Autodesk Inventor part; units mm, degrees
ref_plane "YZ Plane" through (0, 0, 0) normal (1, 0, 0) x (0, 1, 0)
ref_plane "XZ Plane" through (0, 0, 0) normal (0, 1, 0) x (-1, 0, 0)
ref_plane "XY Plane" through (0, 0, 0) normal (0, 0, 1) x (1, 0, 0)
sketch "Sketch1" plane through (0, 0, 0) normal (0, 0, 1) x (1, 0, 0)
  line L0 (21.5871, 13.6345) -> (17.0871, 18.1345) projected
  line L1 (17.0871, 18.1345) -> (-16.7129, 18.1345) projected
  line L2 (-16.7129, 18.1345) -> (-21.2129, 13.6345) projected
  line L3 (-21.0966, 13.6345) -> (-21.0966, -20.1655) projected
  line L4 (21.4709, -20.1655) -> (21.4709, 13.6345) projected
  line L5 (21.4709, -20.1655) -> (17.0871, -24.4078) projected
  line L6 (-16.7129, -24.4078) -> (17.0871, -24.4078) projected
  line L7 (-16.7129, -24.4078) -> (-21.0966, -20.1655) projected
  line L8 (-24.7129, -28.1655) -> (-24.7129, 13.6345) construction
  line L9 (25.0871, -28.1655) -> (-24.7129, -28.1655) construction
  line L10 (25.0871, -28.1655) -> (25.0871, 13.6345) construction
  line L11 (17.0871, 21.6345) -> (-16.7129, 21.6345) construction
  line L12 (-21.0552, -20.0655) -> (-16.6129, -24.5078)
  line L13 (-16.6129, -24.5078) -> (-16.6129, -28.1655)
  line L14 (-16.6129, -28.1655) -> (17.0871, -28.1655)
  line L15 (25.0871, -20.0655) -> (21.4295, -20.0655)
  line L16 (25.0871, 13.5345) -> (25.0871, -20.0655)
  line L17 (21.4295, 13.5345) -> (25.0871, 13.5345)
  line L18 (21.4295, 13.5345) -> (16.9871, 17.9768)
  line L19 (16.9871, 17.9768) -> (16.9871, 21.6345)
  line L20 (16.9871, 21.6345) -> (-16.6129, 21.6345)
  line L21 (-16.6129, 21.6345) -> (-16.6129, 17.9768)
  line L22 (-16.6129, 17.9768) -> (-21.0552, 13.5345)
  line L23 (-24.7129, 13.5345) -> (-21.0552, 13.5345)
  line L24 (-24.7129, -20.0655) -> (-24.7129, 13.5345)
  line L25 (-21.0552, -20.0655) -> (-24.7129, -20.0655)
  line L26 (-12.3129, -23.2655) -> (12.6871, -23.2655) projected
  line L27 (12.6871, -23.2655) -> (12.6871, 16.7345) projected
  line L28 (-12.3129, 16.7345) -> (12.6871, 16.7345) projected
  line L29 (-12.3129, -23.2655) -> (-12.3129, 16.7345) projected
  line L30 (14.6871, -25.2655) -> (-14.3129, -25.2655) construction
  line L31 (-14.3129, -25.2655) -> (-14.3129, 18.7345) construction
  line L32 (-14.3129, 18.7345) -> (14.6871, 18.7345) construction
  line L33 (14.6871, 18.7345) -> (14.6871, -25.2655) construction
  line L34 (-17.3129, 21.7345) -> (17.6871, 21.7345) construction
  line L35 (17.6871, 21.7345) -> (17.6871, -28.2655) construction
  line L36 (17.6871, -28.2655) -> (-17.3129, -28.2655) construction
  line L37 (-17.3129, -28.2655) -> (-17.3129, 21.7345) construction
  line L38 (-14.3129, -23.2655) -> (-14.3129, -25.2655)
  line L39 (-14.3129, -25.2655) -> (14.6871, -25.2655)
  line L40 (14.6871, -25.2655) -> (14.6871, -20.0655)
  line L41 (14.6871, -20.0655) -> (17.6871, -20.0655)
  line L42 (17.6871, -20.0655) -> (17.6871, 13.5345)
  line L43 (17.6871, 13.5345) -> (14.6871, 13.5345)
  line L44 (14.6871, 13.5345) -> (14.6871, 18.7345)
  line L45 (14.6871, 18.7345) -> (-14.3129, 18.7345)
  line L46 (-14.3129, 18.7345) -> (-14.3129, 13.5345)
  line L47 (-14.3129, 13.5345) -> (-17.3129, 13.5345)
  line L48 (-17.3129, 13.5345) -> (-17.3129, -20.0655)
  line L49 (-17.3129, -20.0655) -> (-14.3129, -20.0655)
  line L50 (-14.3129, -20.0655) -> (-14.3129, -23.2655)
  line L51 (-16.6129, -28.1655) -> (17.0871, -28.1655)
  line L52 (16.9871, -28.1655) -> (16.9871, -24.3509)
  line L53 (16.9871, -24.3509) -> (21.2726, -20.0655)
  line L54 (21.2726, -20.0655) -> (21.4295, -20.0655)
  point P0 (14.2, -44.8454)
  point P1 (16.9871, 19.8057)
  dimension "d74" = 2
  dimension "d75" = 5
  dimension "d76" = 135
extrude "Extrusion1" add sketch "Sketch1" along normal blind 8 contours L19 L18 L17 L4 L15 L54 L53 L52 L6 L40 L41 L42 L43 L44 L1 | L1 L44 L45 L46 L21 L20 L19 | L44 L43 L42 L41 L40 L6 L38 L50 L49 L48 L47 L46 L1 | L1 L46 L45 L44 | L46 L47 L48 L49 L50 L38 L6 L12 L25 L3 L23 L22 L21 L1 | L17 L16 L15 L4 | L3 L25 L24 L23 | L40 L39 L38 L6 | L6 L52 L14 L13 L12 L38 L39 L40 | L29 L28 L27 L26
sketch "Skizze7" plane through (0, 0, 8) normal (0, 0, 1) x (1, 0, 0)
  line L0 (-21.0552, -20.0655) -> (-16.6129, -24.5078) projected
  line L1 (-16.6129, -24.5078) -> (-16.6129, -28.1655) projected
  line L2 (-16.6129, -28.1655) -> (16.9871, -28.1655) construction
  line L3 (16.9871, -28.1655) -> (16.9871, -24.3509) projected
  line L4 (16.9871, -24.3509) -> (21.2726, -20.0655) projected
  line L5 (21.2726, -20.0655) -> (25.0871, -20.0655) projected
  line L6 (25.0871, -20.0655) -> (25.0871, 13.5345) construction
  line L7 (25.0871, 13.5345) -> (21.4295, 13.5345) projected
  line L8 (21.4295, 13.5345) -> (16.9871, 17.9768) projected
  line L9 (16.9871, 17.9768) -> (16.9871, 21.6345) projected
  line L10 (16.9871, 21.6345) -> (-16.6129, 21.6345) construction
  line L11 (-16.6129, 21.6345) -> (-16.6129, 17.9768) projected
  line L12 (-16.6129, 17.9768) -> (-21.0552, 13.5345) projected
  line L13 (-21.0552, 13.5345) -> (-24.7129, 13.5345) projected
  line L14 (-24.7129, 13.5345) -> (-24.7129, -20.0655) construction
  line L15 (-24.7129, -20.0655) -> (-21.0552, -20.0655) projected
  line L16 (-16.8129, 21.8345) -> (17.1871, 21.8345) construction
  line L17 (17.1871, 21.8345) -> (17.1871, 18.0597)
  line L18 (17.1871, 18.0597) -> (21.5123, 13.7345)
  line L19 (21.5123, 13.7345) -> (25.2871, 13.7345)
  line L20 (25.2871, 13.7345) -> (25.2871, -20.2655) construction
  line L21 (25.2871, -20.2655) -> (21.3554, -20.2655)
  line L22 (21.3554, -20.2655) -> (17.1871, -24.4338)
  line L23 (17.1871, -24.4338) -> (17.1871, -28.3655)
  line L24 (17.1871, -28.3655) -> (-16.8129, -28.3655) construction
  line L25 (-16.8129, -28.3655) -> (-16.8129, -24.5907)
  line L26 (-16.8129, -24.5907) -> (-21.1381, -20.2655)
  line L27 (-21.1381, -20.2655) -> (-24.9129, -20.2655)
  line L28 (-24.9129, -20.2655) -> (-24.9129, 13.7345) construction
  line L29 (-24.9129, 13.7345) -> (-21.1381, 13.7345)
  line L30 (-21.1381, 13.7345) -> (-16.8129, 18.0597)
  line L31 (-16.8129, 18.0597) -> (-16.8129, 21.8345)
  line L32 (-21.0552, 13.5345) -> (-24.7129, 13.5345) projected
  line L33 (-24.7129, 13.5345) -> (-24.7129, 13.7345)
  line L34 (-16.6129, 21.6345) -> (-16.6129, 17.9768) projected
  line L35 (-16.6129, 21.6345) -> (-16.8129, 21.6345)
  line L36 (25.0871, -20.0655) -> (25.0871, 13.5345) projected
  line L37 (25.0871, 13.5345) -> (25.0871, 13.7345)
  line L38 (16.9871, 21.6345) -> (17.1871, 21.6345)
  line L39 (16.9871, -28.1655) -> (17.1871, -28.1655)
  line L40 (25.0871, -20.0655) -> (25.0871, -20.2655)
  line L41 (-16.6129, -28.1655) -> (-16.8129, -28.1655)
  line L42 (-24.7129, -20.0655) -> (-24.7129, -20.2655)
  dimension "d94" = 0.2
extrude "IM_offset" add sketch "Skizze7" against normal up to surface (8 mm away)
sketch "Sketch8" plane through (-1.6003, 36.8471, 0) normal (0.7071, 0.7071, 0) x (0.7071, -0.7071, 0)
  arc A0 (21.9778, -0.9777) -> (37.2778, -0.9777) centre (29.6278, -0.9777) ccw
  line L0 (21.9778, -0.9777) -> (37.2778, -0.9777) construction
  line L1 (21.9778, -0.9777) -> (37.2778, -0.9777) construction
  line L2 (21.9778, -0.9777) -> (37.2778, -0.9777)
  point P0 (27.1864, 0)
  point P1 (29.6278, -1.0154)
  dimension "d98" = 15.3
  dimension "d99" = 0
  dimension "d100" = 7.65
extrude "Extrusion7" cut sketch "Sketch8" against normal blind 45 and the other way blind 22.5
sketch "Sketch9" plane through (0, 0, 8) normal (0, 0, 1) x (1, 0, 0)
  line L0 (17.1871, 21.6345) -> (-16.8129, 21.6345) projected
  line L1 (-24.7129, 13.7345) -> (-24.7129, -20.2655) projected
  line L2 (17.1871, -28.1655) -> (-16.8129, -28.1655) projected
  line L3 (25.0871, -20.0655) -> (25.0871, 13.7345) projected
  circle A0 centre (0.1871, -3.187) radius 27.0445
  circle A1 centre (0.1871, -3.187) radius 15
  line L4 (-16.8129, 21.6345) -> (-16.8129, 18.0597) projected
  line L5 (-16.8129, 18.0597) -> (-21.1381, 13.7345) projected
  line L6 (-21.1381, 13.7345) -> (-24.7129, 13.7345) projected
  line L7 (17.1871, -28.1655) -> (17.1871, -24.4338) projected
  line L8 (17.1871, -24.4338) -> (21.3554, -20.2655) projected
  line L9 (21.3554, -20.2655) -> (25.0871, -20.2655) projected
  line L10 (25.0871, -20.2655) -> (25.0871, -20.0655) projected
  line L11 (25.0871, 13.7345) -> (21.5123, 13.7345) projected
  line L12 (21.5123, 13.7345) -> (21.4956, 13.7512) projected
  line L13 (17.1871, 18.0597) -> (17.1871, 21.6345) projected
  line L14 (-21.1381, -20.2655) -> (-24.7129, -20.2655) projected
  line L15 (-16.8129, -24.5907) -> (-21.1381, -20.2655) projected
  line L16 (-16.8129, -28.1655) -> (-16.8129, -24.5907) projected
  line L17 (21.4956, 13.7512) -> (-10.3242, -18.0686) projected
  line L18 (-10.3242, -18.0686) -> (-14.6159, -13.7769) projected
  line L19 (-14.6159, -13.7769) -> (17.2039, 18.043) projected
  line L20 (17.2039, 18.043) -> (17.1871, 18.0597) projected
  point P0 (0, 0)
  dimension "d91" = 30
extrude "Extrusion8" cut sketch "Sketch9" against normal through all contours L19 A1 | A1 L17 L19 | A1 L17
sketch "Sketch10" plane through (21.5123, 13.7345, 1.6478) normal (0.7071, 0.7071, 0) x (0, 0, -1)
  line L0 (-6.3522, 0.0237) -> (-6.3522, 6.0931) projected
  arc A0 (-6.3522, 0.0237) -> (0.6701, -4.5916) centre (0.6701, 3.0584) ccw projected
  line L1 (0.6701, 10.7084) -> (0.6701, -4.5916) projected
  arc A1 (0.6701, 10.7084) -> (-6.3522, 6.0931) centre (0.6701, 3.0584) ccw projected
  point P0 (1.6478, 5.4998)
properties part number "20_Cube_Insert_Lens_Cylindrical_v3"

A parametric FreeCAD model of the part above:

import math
import FreeCAD as App
import Part
import Sketcher

V = App.Vector
Q = App.Units.Quantity


def add_polygon(sketch, points):
    """Adds a closed chain of lines whose ends are joined by coincident constraints."""
    first, n = sketch.GeometryCount, len(points)
    for a, b in zip(points, points[1:] + points[:1]):
        sketch.addGeometry(Part.LineSegment(App.Vector(*a, 0), App.Vector(*b, 0)), False)
    for i in range(n):
        sketch.addConstraint(Sketcher.Constraint("Coincident", first + i, 2, first + (i + 1) % n, 1))

doc = App.newDocument("Part")
body = doc.addObject("PartDesign::Body", "Body")

# Sketch on XY plane
sketch1 = body.newObject("Sketcher::SketchObject", "Sketch")
sketch1.AttachmentSupport = (doc.getObject("XY_Plane"), [""])
sketch1.MapMode = "FlatFace"
add_polygon(sketch1, [(16.9871, 17.9768), (16.9871, 21.6345), (-16.6129, 21.6345), (-16.6129, 17.9768), (-21.0552, 13.5345), (-24.7129, 13.5345), (-24.7129, -20.0655), (-21.0552, -20.0655), (-16.6129, -24.5078), (-16.6129, -28.1655), (16.9871, -28.1655), (16.9871, -24.3509), (21.2726, -20.0655), (25.0871, -20.0655), (25.0871, 13.5345), (21.4295, 13.5345)])  # lines 0-15
sketch1.addConstraint([
    Sketcher.Constraint("Vertical", 0),
    Sketcher.Constraint("Horizontal", 1),
    Sketcher.Constraint("Vertical", 2),
    Sketcher.Constraint("Horizontal", 4),
    Sketcher.Constraint("Vertical", 5),
    Sketcher.Constraint("Horizontal", 6),
    Sketcher.Constraint("Vertical", 8),
    Sketcher.Constraint("Horizontal", 9),
    Sketcher.Constraint("Vertical", 10),
    Sketcher.Constraint("Horizontal", 12),
    Sketcher.Constraint("Vertical", 13),
    Sketcher.Constraint("Horizontal", 14),
    Sketcher.Constraint("Perpendicular", 3, 7),
    Sketcher.Constraint("Perpendicular", 7, 11),
    Sketcher.Constraint("Perpendicular", 11, 15),
    Sketcher.Constraint("Horizontal", 6, 2, 11, 2),
    Sketcher.Constraint("Horizontal", 4, 2, 13, 2),
    Sketcher.Constraint("Horizontal", 2, 2, 15, 2),
    Sketcher.Constraint("Vertical", 3, 2, 6, 2),
    Sketcher.Constraint("Vertical", 2, 2, 7, 2),
    Sketcher.Constraint("Vertical", 0, 2, 9, 2),
    Sketcher.Constraint("Equal", 6, 14),
    Sketcher.Constraint("Equal", 14, 0),
    Sketcher.Constraint("Equal", 9, 5),
    Sketcher.Constraint("Equal", 2, 8),
    Sketcher.Constraint("Equal", 12, 10),
    Sketcher.Constraint("DistanceX", 1, 2, 1, 1, Q("33.6 mm")),
    Sketcher.Constraint("DistanceY", 3, 2, 1, 2, Q("8.1 mm")),
    Sketcher.Constraint("DistanceX", 4, 2, 4, 1, Q("3.6577 mm")),
    Sketcher.Constraint("DistanceX", 12, 1, 12, 2, Q("3.8145 mm")),
    Sketcher.Constraint("DistanceX", -1, 1, 0, 2, Q("16.987 mm")),
    Sketcher.Constraint("DistanceY", 10, 2, -1, 1, Q("24.351 mm")),
])
pad1 = body.newObject("PartDesign::Pad", "Pad")
pad1.Profile = sketch1
pad1.Length = 8

# Sketch on XY plane
sketch2 = body.newObject("Sketcher::SketchObject", "Sketch001")
sketch2.AttachmentSupport = (doc.getObject("XY_Plane"), [""])
sketch2.MapMode = "FlatFace"
sketch2.AttachmentOffset = App.Placement(V(0, 0, 8), App.Rotation())
add_polygon(sketch2, [(-16.6129, -24.5078), (-21.0552, -20.0655), (-24.7129, -20.0655), (-24.7129, -20.2655), (-21.1381, -20.2655), (-16.8129, -24.5907), (-16.8129, -28.1655), (-16.6129, -28.1655)])  # lines 0-7
add_polygon(sketch2, [(21.4295, 13.5345), (25.0871, 13.5345), (25.0871, 13.7345), (21.5123, 13.7345), (17.1871, 18.0597), (17.1871, 21.6345), (16.9871, 21.6345), (16.9871, 17.9768)])  # lines 8-15
add_polygon(sketch2, [(16.9871, -24.3509), (16.9871, -28.1655), (17.1871, -28.1655), (17.1871, -24.4338), (21.3554, -20.2655), (25.0871, -20.2655), (25.0871, -20.0655), (21.2726, -20.0655)])  # lines 16-23
add_polygon(sketch2, [(-16.6129, 17.9768), (-16.6129, 21.6345), (-16.8129, 21.6345), (-16.8129, 18.0597), (-21.1381, 13.7345), (-24.7129, 13.7345), (-24.7129, 13.5345), (-21.0552, 13.5345)])  # lines 24-31
sketch2.addConstraint([
    Sketcher.Constraint("Horizontal", 1),
    Sketcher.Constraint("Vertical", 2),
    Sketcher.Constraint("Horizontal", 3),
    Sketcher.Constraint("Vertical", 5),
    Sketcher.Constraint("Horizontal", 6),
    Sketcher.Constraint("Vertical", 7),
    Sketcher.Constraint("Horizontal", 8),
    Sketcher.Constraint("Vertical", 9),
    Sketcher.Constraint("Horizontal", 10),
    Sketcher.Constraint("Vertical", 12),
    Sketcher.Constraint("Horizontal", 13),
    Sketcher.Constraint("Vertical", 14),
    Sketcher.Constraint("Vertical", 16),
    Sketcher.Constraint("Horizontal", 17),
    Sketcher.Constraint("Vertical", 18),
    Sketcher.Constraint("Horizontal", 20),
    Sketcher.Constraint("Vertical", 21),
    Sketcher.Constraint("Horizontal", 22),
    Sketcher.Constraint("Vertical", 24),
    Sketcher.Constraint("Horizontal", 25),
    Sketcher.Constraint("Vertical", 26),
    Sketcher.Constraint("Horizontal", 28),
    Sketcher.Constraint("Vertical", 29),
    Sketcher.Constraint("Horizontal", 30),
    Sketcher.Constraint("Parallel", 0, 4),
    Sketcher.Constraint("Parallel", 4, 11),
    Sketcher.Constraint("Parallel", 11, 15),
    Sketcher.Constraint("Perpendicular", 15, 19),
    Sketcher.Constraint("Parallel", 19, 23),
    Sketcher.Constraint("Parallel", 23, 27),
    Sketcher.Constraint("Parallel", 27, 31),
    Sketcher.Constraint("Horizontal", 6, 2, 16, 2),
    Sketcher.Constraint("Horizontal", 3, 2, 19, 2),
    Sketcher.Constraint("Horizontal", 1, 2, 21, 2),
    Sketcher.Constraint("Horizontal", 13, 2, 24, 2),
    Sketcher.Constraint("Horizontal", 11, 2, 26, 2),
    Sketcher.Constraint("Horizontal", 10, 2, 27, 2),
    Sketcher.Constraint("Horizontal", 15, 2, 29, 2),
    Sketcher.Constraint("Horizontal", 14, 2, 31, 2),
    Sketcher.Constraint("Vertical", 14, 2, 16, 2),
    Sketcher.Constraint("Vertical", 12, 2, 17, 2),
    Sketcher.Constraint("Vertical", 9, 2, 20, 2),
    Sketcher.Constraint("Vertical", 7, 2, 24, 2),
    Sketcher.Constraint("Vertical", 5, 2, 25, 2),
    Sketcher.Constraint("Vertical", 3, 2, 27, 2),
    Sketcher.Constraint("Vertical", 2, 2, 28, 2),
    Sketcher.Constraint("Vertical", 0, 2, 30, 2),
    Sketcher.Constraint("Equal", 1, 8),
    Sketcher.Constraint("Equal", 3, 10),
    Sketcher.Constraint("Equal", 6, 13),
    Sketcher.Constraint("Equal", 25, 2),
    Sketcher.Constraint("Equal", 28, 5),
    Sketcher.Constraint("Equal", 2, 9),
    Sketcher.Constraint("Equal", 5, 12),
    Sketcher.Constraint("DistanceX", 6, 1, 6, 2, Q("0.2 mm")),
    Sketcher.Constraint("DistanceY", 3, 2, 9, 2, Q("34 mm")),
    Sketcher.Constraint("DistanceX", 5, 2, 17, 2, Q("34 mm")),
    Sketcher.Constraint("DistanceX", 2, 2, 4, 2, Q("7.9 mm")),
    Sketcher.Constraint("DistanceX", 1, 2, 1, 1, Q("3.6577 mm")),
    Sketcher.Constraint("DistanceX", 3, 1, 3, 2, Q("3.5748 mm")),
    Sketcher.Constraint("DistanceX", 20, 1, 20, 2, Q("3.7317 mm")),
    Sketcher.Constraint("DistanceX", 22, 2, 22, 1, Q("3.8145 mm")),
    Sketcher.Constraint("DistanceX", 1, 2, -1, 1, Q("24.713 mm")),
    Sketcher.Constraint("DistanceY", 23, 2, -1, 1, Q("24.351 mm")),
])
pad2 = body.newObject("PartDesign::Pad", "Pad001")
pad2.Profile = sketch2
pad2.Length = 8
pad2.Reversed = True

# Sketch on an angled plane
sketch3 = body.newObject("Sketcher::SketchObject", "Sketch002")
sketch3.Placement = App.Placement(V(-1.6003, 36.8471, 0), App.Rotation(V(0.707106781, -0.707106781, 0), V(0, 0, -0.999999999), V(0.707106781, 0.707106781, 0), "ZXY"))
sketch3.addGeometry([
    Part.LineSegment(V(37.2778, -0.9777, 0), V(21.9778, -0.9777, 0)),
    Part.ArcOfCircle(Part.Circle(V(29.6278, -0.9777, 0), V(0, 0, 1), 7.65), math.radians(180), math.radians(360)),
], False)
sketch3.addConstraint([
    Sketcher.Constraint("Coincident", 0, 1, 1, 2),
    Sketcher.Constraint("Coincident", 1, 1, 0, 2),
    Sketcher.Constraint("Horizontal", 0),
    Sketcher.Constraint("Horizontal", 1, 3, 0, 1),
    Sketcher.Constraint("Radius", 1, Q("7.65 mm")),
    Sketcher.Constraint("DistanceX", -1, 1, 1, 3, Q("29.6278 mm")),
    Sketcher.Constraint("DistanceY", 1, 3, -1, 1, Q("0.9777 mm")),
])
pocket1 = body.newObject("PartDesign::Pocket", "Pocket")
pocket1.Profile = sketch3
pocket1.Type = "TwoLengths"
pocket1.Length = 45
pocket1.Length2 = 22.5

# Sketch on XY plane
sketch4 = body.newObject("Sketcher::SketchObject", "Sketch003")
sketch4.AttachmentSupport = (doc.getObject("XY_Plane"), [""])
sketch4.MapMode = "FlatFace"
sketch4.AttachmentOffset = App.Placement(V(0, 0, 8), App.Rotation())
sketch4.addGeometry(Part.Circle(V(0.1871, -3.187, 0), V(0, 0, 1), 15), False)
sketch4.addConstraint([
    Sketcher.Constraint("Diameter", 0, Q("30 mm")),
    Sketcher.Constraint("DistanceX", -1, 1, 0, 3, Q("0.187 mm")),
    Sketcher.Constraint("DistanceY", 0, 3, -1, 1, Q("3.187 mm")),
])
pocket2 = body.newObject("PartDesign::Pocket", "Pocket001")
pocket2.Profile = sketch4
pocket2.Type = "ThroughAll"

doc.recompute()
